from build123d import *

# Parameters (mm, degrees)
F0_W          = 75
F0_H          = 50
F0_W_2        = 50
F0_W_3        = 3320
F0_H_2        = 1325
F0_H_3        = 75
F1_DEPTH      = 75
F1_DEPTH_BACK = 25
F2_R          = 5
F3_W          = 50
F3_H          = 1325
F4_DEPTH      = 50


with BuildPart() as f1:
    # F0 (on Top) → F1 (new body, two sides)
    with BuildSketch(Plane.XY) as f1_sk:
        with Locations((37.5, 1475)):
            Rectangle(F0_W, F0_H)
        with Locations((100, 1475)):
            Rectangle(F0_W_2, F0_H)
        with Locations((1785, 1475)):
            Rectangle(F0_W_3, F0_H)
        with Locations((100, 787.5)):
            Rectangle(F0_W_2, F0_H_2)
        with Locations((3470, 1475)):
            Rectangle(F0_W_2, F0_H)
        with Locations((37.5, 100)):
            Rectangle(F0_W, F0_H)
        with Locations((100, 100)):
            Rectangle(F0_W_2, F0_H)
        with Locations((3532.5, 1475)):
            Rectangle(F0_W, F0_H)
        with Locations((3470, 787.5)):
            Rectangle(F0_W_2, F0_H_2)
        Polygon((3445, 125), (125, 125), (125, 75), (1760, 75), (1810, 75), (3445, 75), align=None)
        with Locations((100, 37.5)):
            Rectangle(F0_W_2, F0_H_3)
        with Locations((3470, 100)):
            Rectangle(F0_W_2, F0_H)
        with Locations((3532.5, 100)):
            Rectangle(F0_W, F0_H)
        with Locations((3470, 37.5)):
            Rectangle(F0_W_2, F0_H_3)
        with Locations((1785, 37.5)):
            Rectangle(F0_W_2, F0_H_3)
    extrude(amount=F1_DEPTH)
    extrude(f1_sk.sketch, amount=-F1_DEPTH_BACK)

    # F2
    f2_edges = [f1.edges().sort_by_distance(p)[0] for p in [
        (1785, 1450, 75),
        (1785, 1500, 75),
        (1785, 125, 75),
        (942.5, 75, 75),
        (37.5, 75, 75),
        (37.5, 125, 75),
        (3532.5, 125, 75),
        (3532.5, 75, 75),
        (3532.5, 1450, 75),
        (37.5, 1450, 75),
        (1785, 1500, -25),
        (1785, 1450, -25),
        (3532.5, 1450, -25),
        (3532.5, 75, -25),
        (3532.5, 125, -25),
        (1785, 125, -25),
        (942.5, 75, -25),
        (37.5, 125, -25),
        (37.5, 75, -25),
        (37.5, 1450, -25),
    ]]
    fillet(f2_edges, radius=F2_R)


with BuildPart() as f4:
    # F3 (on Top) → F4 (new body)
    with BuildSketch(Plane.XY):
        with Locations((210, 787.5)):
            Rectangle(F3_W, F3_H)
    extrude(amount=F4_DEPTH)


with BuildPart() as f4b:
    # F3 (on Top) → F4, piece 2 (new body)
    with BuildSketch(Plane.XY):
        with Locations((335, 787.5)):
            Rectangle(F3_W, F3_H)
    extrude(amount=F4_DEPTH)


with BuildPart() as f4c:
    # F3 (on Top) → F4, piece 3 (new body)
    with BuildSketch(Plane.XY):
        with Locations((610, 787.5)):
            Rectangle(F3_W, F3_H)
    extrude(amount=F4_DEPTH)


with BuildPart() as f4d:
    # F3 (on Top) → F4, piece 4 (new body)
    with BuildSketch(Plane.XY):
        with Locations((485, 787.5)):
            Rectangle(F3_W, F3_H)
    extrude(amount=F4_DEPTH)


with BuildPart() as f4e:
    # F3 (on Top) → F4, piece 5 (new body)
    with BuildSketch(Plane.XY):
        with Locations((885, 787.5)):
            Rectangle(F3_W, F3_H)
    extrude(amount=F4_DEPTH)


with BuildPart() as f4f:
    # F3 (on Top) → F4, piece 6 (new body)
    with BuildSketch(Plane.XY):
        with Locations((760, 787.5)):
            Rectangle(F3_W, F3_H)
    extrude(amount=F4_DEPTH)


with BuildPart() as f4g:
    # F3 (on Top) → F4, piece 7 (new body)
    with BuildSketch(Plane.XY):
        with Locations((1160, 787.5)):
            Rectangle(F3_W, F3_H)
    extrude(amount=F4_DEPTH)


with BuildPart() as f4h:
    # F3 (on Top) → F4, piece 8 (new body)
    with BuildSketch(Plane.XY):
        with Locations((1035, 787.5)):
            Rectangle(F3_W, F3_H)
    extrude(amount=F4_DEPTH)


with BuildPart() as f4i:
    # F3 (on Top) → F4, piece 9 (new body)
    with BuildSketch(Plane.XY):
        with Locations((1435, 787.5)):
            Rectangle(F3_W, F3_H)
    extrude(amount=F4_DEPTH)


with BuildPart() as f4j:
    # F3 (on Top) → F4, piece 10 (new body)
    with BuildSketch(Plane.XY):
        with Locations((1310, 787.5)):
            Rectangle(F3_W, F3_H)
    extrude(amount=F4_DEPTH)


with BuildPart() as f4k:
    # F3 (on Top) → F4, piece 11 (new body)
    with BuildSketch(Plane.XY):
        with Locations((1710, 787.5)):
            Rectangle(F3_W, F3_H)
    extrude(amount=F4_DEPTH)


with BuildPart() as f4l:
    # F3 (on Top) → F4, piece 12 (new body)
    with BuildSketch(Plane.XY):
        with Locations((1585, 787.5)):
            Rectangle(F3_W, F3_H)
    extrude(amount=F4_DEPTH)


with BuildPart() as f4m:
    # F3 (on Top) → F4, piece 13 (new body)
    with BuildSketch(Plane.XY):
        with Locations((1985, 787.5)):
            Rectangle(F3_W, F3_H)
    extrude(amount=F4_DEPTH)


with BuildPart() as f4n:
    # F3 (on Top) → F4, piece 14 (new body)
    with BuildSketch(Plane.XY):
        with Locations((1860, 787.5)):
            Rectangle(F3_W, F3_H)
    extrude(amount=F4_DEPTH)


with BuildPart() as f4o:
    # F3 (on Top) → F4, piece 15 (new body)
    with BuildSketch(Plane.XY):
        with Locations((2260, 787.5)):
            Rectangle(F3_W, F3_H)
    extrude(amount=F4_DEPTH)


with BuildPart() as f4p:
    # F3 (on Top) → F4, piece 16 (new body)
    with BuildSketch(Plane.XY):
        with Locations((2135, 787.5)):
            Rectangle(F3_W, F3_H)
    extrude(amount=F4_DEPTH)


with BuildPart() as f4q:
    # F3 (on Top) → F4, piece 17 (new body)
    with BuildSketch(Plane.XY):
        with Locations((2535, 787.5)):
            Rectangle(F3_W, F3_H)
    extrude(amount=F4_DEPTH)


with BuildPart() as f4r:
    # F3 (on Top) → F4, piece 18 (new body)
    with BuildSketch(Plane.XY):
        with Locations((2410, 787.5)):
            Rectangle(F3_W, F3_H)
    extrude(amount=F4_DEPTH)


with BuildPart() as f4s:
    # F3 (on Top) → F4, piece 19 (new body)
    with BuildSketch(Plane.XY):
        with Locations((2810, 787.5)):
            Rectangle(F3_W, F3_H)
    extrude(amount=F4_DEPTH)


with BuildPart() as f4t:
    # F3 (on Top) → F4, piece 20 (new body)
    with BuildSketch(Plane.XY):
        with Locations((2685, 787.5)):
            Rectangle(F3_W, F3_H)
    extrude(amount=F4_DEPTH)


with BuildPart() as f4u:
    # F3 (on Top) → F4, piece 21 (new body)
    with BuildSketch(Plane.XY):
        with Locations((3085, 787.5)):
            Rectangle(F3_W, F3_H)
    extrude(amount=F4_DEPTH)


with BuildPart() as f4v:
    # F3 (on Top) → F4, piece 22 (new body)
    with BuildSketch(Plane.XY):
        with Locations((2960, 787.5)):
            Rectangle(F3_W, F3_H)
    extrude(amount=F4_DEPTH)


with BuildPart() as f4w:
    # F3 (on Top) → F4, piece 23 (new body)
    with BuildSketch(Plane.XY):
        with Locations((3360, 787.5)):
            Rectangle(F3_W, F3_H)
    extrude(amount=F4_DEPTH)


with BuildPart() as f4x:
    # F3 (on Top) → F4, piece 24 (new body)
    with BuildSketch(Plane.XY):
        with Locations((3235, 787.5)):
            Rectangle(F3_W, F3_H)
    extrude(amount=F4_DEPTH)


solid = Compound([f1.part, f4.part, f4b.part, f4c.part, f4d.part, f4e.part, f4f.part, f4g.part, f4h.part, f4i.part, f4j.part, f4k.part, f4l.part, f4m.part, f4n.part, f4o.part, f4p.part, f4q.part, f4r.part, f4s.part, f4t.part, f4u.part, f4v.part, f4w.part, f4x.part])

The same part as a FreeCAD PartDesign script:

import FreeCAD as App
import Part
import Sketcher
from FreeCAD import Vector


def edges_at(feature, points):
    """Names of the edges that pass closest to the given points."""
    edges = feature.Shape.Edges
    near = lambda p: min(range(len(edges)), key=lambda i: edges[i].distToShape(Part.Vertex(*p))[0])
    return sorted({f"Edge{near(p) + 1}" for p in points})


def add_polygon(sketch, points):
    """Adds a closed chain of lines whose ends are joined by coincident constraints."""
    first, n = sketch.GeometryCount, len(points)
    for a, b in zip(points, points[1:] + points[:1]):
        sketch.addGeometry(Part.LineSegment(App.Vector(*a, 0), App.Vector(*b, 0)), False)
    for i in range(n):
        sketch.addConstraint(Sketcher.Constraint("Coincident", first + i, 2, first + (i + 1) % n, 1))

doc = App.newDocument("Part")
body = doc.addObject("PartDesign::Body", "Body")

sketch1 = body.newObject("Sketcher::SketchObject", "Sketch")
sketch1.AttachmentSupport = (doc.getObject("XY_Plane"), [""])
sketch1.MapMode = "FlatFace"
add_polygon(sketch1, [(125, 75), (1760, 75), (1760, 0), (1810, 0), (1810, 75), (3445, 75), (3445, 0), (3495, 0), (3495, 75), (3570, 75), (3570, 125), (3495, 125), (3495, 1450), (3570, 1450), (3570, 1500), (0, 1500), (0, 1450), (75, 1450), (75, 125), (0, 125), (0, 75), (75, 75), (75, 0), (125, 0)])
add_polygon(sketch1, [(3445, 1450), (3445, 125), (125, 125), (125, 1450)])
sketch1.addConstraint(Sketcher.Constraint("Horizontal", 0))
sketch1.addConstraint(Sketcher.Constraint("Vertical", 1))
sketch1.addConstraint(Sketcher.Constraint("Horizontal", 2))
sketch1.addConstraint(Sketcher.Constraint("Vertical", 3))
sketch1.addConstraint(Sketcher.Constraint("Horizontal", 4))
sketch1.addConstraint(Sketcher.Constraint("Vertical", 5))
sketch1.addConstraint(Sketcher.Constraint("Horizontal", 6))
sketch1.addConstraint(Sketcher.Constraint("Vertical", 7))
sketch1.addConstraint(Sketcher.Constraint("Horizontal", 8))
sketch1.addConstraint(Sketcher.Constraint("Vertical", 9))
sketch1.addConstraint(Sketcher.Constraint("Horizontal", 10))
sketch1.addConstraint(Sketcher.Constraint("Vertical", 11))
sketch1.addConstraint(Sketcher.Constraint("Horizontal", 12))
sketch1.addConstraint(Sketcher.Constraint("Vertical", 13))
sketch1.addConstraint(Sketcher.Constraint("Horizontal", 14))
sketch1.addConstraint(Sketcher.Constraint("Vertical", 15))
sketch1.addConstraint(Sketcher.Constraint("Horizontal", 16))
sketch1.addConstraint(Sketcher.Constraint("Vertical", 17))
sketch1.addConstraint(Sketcher.Constraint("Horizontal", 18))
sketch1.addConstraint(Sketcher.Constraint("Vertical", 19))
sketch1.addConstraint(Sketcher.Constraint("Horizontal", 20))
sketch1.addConstraint(Sketcher.Constraint("Vertical", 21))
sketch1.addConstraint(Sketcher.Constraint("Horizontal", 22))
sketch1.addConstraint(Sketcher.Constraint("Vertical", 23))
sketch1.addConstraint(Sketcher.Constraint("Vertical", 24))
sketch1.addConstraint(Sketcher.Constraint("Horizontal", 25))
sketch1.addConstraint(Sketcher.Constraint("Vertical", 26))
sketch1.addConstraint(Sketcher.Constraint("Horizontal", 27))
sketch1.addConstraint(Sketcher.Constraint("PointOnObject", 1, 2, -1))
sketch1.addConstraint(Sketcher.Constraint("PointOnObject", 5, 2, -1))
sketch1.addConstraint(Sketcher.Constraint("PointOnObject", 14, 2, -2))
sketch1.addConstraint(Sketcher.Constraint("PointOnObject", 18, 2, -2))
sketch1.addConstraint(Sketcher.Constraint("PointOnObject", 21, 2, -1))
sketch1.addConstraint(Sketcher.Constraint("Horizontal", 0, 2, 3, 2))
sketch1.addConstraint(Sketcher.Constraint("Horizontal", 4, 2, 7, 2))
sketch1.addConstraint(Sketcher.Constraint("Horizontal", 12, 2, 15, 2))
sketch1.addConstraint(Sketcher.Constraint("Horizontal", 10, 2, 17, 2))
sketch1.addConstraint(Sketcher.Constraint("Horizontal", 8, 2, 19, 2))
sketch1.addConstraint(Sketcher.Constraint("Horizontal", 18, 2, 24, 2))
sketch1.addConstraint(Sketcher.Constraint("Horizontal", 16, 2, 26, 2))
sketch1.addConstraint(Sketcher.Constraint("Vertical", 7, 2, 10, 2))
sketch1.addConstraint(Sketcher.Constraint("Vertical", 9, 2, 12, 2))
sketch1.addConstraint(Sketcher.Constraint("Vertical", 17, 2, 20, 2))
sketch1.addConstraint(Sketcher.Constraint("Vertical", 5, 2, 24, 2))
sketch1.addConstraint(Sketcher.Constraint("Vertical", 23, 2, 25, 2))
sketch1.addConstraint(Sketcher.Constraint("Equal", 0, 4))
sketch1.addConstraint(Sketcher.Constraint("Equal", 2, 6))
sketch1.addConstraint(Sketcher.Constraint("Equal", 12, 16))
sketch1.addConstraint(Sketcher.Constraint("Equal", 6, 22))
sketch1.addConstraint(Sketcher.Constraint("Equal", 20, 1))
sketch1.addConstraint(Sketcher.Constraint("Equal", 22, 9))
sketch1.addConstraint(Sketcher.Constraint("Equal", 9, 13))
sketch1.addConstraint(Sketcher.Constraint("DistanceX", 0, 1, 0, 2, 1635.0))
sketch1.addConstraint(Sketcher.Constraint("DistanceX", 2, 1, 2, 2, 50.0))
sketch1.addConstraint(Sketcher.Constraint("DistanceX", 8, 1, 8, 2, 75.0))
sketch1.addConstraint(Sketcher.Constraint("DistanceY", 11, 1, 11, 2, 1325.0))
pad1 = body.newObject("PartDesign::Pad", "Pad")
pad1.Profile = sketch1
pad1.Type = "TwoLengths"
pad1.Length = 75
pad1.Length2 = 25
doc.recompute()

fillet = body.newObject("PartDesign::Fillet", "Fillet")
fillet.Base = (pad1, edges_at(pad1, [
    (1785, 1450, 75),
    (1785, 1500, 75),
    (1785, 125, 75),
    (942.5, 75, 75),
    (37.5, 75, 75),
    (37.5, 125, 75),
    (3532.5, 125, 75),
    (3532.5, 75, 75),
    (3532.5, 1450, 75),
    (37.5, 1450, 75),
    (1785, 1500, -25),
    (1785, 1450, -25),
    (3532.5, 1450, -25),
    (3532.5, 75, -25),
    (3532.5, 125, -25),
    (1785, 125, -25),
    (942.5, 75, -25),
    (37.5, 125, -25),
    (37.5, 75, -25),
    (37.5, 1450, -25),
]))
fillet.Radius = 5
body2 = doc.addObject("PartDesign::Body", "Body001")

sketch2 = body2.newObject("Sketcher::SketchObject", "Sketch001")
sketch2.AttachmentSupport = (doc.getObject("XY_Plane001"), [""])
sketch2.MapMode = "FlatFace"
add_polygon(sketch2, [(185, 1450), (185, 125), (235, 125), (235, 1450)])
sketch2.addConstraint(Sketcher.Constraint("Vertical", 0))
sketch2.addConstraint(Sketcher.Constraint("Horizontal", 1))
sketch2.addConstraint(Sketcher.Constraint("Vertical", 2))
sketch2.addConstraint(Sketcher.Constraint("Horizontal", 3))
sketch2.addConstraint(Sketcher.Constraint("DistanceX", 1, 1, 1, 2, 50.0))
sketch2.addConstraint(Sketcher.Constraint("DistanceY", 0, 2, 0, 1, 1325.0))
sketch2.addConstraint(Sketcher.Constraint("DistanceX", -1, 1, 0, 2, 185.0))
sketch2.addConstraint(Sketcher.Constraint("DistanceY", -1, 1, 0, 2, 125.0))
pad2 = body2.newObject("PartDesign::Pad", "Pad001")
pad2.Profile = sketch2
pad2.Length = 50
body3 = doc.addObject("PartDesign::Body", "Body002")

sketch3 = body3.newObject("Sketcher::SketchObject", "Sketch002")
sketch3.AttachmentSupport = (doc.getObject("XY_Plane002"), [""])
sketch3.MapMode = "FlatFace"
add_polygon(sketch3, [(310, 1450), (310, 125), (360, 125), (360, 1450)])
sketch3.addConstraint(Sketcher.Constraint("Vertical", 0))
sketch3.addConstraint(Sketcher.Constraint("Horizontal", 1))
sketch3.addConstraint(Sketcher.Constraint("Vertical", 2))
sketch3.addConstraint(Sketcher.Constraint("Horizontal", 3))
sketch3.addConstraint(Sketcher.Constraint("DistanceX", 1, 1, 1, 2, 50.0))
sketch3.addConstraint(Sketcher.Constraint("DistanceY", 0, 2, 0, 1, 1325.0))
sketch3.addConstraint(Sketcher.Constraint("DistanceX", -1, 1, 0, 2, 310.0))
sketch3.addConstraint(Sketcher.Constraint("DistanceY", -1, 1, 0, 2, 125.0))
pad3 = body3.newObject("PartDesign::Pad", "Pad002")
pad3.Profile = sketch3
pad3.Length = 50
body4 = doc.addObject("PartDesign::Body", "Body003")

sketch4 = body4.newObject("Sketcher::SketchObject", "Sketch003")
sketch4.AttachmentSupport = (doc.getObject("XY_Plane003"), [""])
sketch4.MapMode = "FlatFace"
add_polygon(sketch4, [(585, 1450), (585, 125), (635, 125), (635, 1450)])
sketch4.addConstraint(Sketcher.Constraint("Vertical", 0))
sketch4.addConstraint(Sketcher.Constraint("Horizontal", 1))
sketch4.addConstraint(Sketcher.Constraint("Vertical", 2))
sketch4.addConstraint(Sketcher.Constraint("Horizontal", 3))
sketch4.addConstraint(Sketcher.Constraint("DistanceX", 1, 1, 1, 2, 50.0))
sketch4.addConstraint(Sketcher.Constraint("DistanceY", 0, 2, 0, 1, 1325.0))
sketch4.addConstraint(Sketcher.Constraint("DistanceX", -1, 1, 0, 2, 585.0))
sketch4.addConstraint(Sketcher.Constraint("DistanceY", -1, 1, 0, 2, 125.0))
pad4 = body4.newObject("PartDesign::Pad", "Pad003")
pad4.Profile = sketch4
pad4.Length = 50
body5 = doc.addObject("PartDesign::Body", "Body004")

sketch5 = body5.newObject("Sketcher::SketchObject", "Sketch004")
sketch5.AttachmentSupport = (doc.getObject("XY_Plane004"), [""])
sketch5.MapMode = "FlatFace"
add_polygon(sketch5, [(460, 1450), (460, 125), (510, 125), (510, 1450)])
sketch5.addConstraint(Sketcher.Constraint("Vertical", 0))
sketch5.addConstraint(Sketcher.Constraint("Horizontal", 1))
sketch5.addConstraint(Sketcher.Constraint("Vertical", 2))
sketch5.addConstraint(Sketcher.Constraint("Horizontal", 3))
sketch5.addConstraint(Sketcher.Constraint("DistanceX", 1, 1, 1, 2, 50.0))
sketch5.addConstraint(Sketcher.Constraint("DistanceY", 0, 2, 0, 1, 1325.0))
sketch5.addConstraint(Sketcher.Constraint("DistanceX", -1, 1, 0, 2, 460.0))
sketch5.addConstraint(Sketcher.Constraint("DistanceY", -1, 1, 0, 2, 125.0))
pad5 = body5.newObject("PartDesign::Pad", "Pad004")
pad5.Profile = sketch5
pad5.Length = 50
body6 = doc.addObject("PartDesign::Body", "Body005")

sketch6 = body6.newObject("Sketcher::SketchObject", "Sketch005")
sketch6.AttachmentSupport = (doc.getObject("XY_Plane005"), [""])
sketch6.MapMode = "FlatFace"
add_polygon(sketch6, [(860, 1450), (860, 125), (910, 125), (910, 1450)])
sketch6.addConstraint(Sketcher.Constraint("Vertical", 0))
sketch6.addConstraint(Sketcher.Constraint("Horizontal", 1))
sketch6.addConstraint(Sketcher.Constraint("Vertical", 2))
sketch6.addConstraint(Sketcher.Constraint("Horizontal", 3))
sketch6.addConstraint(Sketcher.Constraint("DistanceX", 1, 1, 1, 2, 50.0))
sketch6.addConstraint(Sketcher.Constraint("DistanceY", 0, 2, 0, 1, 1325.0))
sketch6.addConstraint(Sketcher.Constraint("DistanceX", -1, 1, 0, 2, 860.0))
sketch6.addConstraint(Sketcher.Constraint("DistanceY", -1, 1, 0, 2, 125.0))
pad6 = body6.newObject("PartDesign::Pad", "Pad005")
pad6.Profile = sketch6
pad6.Length = 50
body7 = doc.addObject("PartDesign::Body", "Body006")

sketch7 = body7.newObject("Sketcher::SketchObject", "Sketch006")
sketch7.AttachmentSupport = (doc.getObject("XY_Plane006"), [""])
sketch7.MapMode = "FlatFace"
add_polygon(sketch7, [(735, 1450), (735, 125), (785, 125), (785, 1450)])
sketch7.addConstraint(Sketcher.Constraint("Vertical", 0))
sketch7.addConstraint(Sketcher.Constraint("Horizontal", 1))
sketch7.addConstraint(Sketcher.Constraint("Vertical", 2))
sketch7.addConstraint(Sketcher.Constraint("Horizontal", 3))
sketch7.addConstraint(Sketcher.Constraint("DistanceX", 1, 1, 1, 2, 50.0))
sketch7.addConstraint(Sketcher.Constraint("DistanceY", 0, 2, 0, 1, 1325.0))
sketch7.addConstraint(Sketcher.Constraint("DistanceX", -1, 1, 0, 2, 735.0))
sketch7.addConstraint(Sketcher.Constraint("DistanceY", -1, 1, 0, 2, 125.0))
pad7 = body7.newObject("PartDesign::Pad", "Pad006")
pad7.Profile = sketch7
pad7.Length = 50
body8 = doc.addObject("PartDesign::Body", "Body007")

sketch8 = body8.newObject("Sketcher::SketchObject", "Sketch007")
sketch8.AttachmentSupport = (doc.getObject("XY_Plane007"), [""])
sketch8.MapMode = "FlatFace"
add_polygon(sketch8, [(1135, 1450), (1135, 125), (1185, 125), (1185, 1450)])
sketch8.addConstraint(Sketcher.Constraint("Vertical", 0))
sketch8.addConstraint(Sketcher.Constraint("Horizontal", 1))
sketch8.addConstraint(Sketcher.Constraint("Vertical", 2))
sketch8.addConstraint(Sketcher.Constraint("Horizontal", 3))
sketch8.addConstraint(Sketcher.Constraint("DistanceX", 1, 1, 1, 2, 50.0))
sketch8.addConstraint(Sketcher.Constraint("DistanceY", 0, 2, 0, 1, 1325.0))
sketch8.addConstraint(Sketcher.Constraint("DistanceX", -1, 1, 0, 2, 1135.0))
sketch8.addConstraint(Sketcher.Constraint("DistanceY", -1, 1, 0, 2, 125.0))
pad8 = body8.newObject("PartDesign::Pad", "Pad007")
pad8.Profile = sketch8
pad8.Length = 50
body9 = doc.addObject("PartDesign::Body", "Body008")

sketch9 = body9.newObject("Sketcher::SketchObject", "Sketch008")
sketch9.AttachmentSupport = (doc.getObject("XY_Plane008"), [""])
sketch9.MapMode = "FlatFace"
add_polygon(sketch9, [(1010, 1450), (1010, 125), (1060, 125), (1060, 1450)])
sketch9.addConstraint(Sketcher.Constraint("Vertical", 0))
sketch9.addConstraint(Sketcher.Constraint("Horizontal", 1))
sketch9.addConstraint(Sketcher.Constraint("Vertical", 2))
sketch9.addConstraint(Sketcher.Constraint("Horizontal", 3))
sketch9.addConstraint(Sketcher.Constraint("DistanceX", 1, 1, 1, 2, 50.0))
sketch9.addConstraint(Sketcher.Constraint("DistanceY", 0, 2, 0, 1, 1325.0))
sketch9.addConstraint(Sketcher.Constraint("DistanceX", -1, 1, 0, 2, 1010.0))
sketch9.addConstraint(Sketcher.Constraint("DistanceY", -1, 1, 0, 2, 125.0))
pad9 = body9.newObject("PartDesign::Pad", "Pad008")
pad9.Profile = sketch9
pad9.Length = 50
body10 = doc.addObject("PartDesign::Body", "Body009")

sketch10 = body10.newObject("Sketcher::SketchObject", "Sketch009")
sketch10.AttachmentSupport = (doc.getObject("XY_Plane009"), [""])
sketch10.MapMode = "FlatFace"
add_polygon(sketch10, [(1410, 1450), (1410, 125), (1460, 125), (1460, 1450)])
sketch10.addConstraint(Sketcher.Constraint("Vertical", 0))
sketch10.addConstraint(Sketcher.Constraint("Horizontal", 1))
sketch10.addConstraint(Sketcher.Constraint("Vertical", 2))
sketch10.addConstraint(Sketcher.Constraint("Horizontal", 3))
sketch10.addConstraint(Sketcher.Constraint("DistanceX", 1, 1, 1, 2, 50.0))
sketch10.addConstraint(Sketcher.Constraint("DistanceY", 0, 2, 0, 1, 1325.0))
sketch10.addConstraint(Sketcher.Constraint("DistanceX", -1, 1, 0, 2, 1410.0))
sketch10.addConstraint(Sketcher.Constraint("DistanceY", -1, 1, 0, 2, 125.0))
pad10 = body10.newObject("PartDesign::Pad", "Pad009")
pad10.Profile = sketch10
pad10.Length = 50
body11 = doc.addObject("PartDesign::Body", "Body010")

sketch11 = body11.newObject("Sketcher::SketchObject", "Sketch010")
sketch11.AttachmentSupport = (doc.getObject("XY_Plane010"), [""])
sketch11.MapMode = "FlatFace"
add_polygon(sketch11, [(1285, 1450), (1285, 125), (1335, 125), (1335, 1450)])
sketch11.addConstraint(Sketcher.Constraint("Vertical", 0))
sketch11.addConstraint(Sketcher.Constraint("Horizontal", 1))
sketch11.addConstraint(Sketcher.Constraint("Vertical", 2))
sketch11.addConstraint(Sketcher.Constraint("Horizontal", 3))
sketch11.addConstraint(Sketcher.Constraint("DistanceX", 1, 1, 1, 2, 50.0))
sketch11.addConstraint(Sketcher.Constraint("DistanceY", 0, 2, 0, 1, 1325.0))
sketch11.addConstraint(Sketcher.Constraint("DistanceX", -1, 1, 0, 2, 1285.0))
sketch11.addConstraint(Sketcher.Constraint("DistanceY", -1, 1, 0, 2, 125.0))
pad11 = body11.newObject("PartDesign::Pad", "Pad010")
pad11.Profile = sketch11
pad11.Length = 50
body12 = doc.addObject("PartDesign::Body", "Body011")

sketch12 = body12.newObject("Sketcher::SketchObject", "Sketch011")
sketch12.AttachmentSupport = (doc.getObject("XY_Plane011"), [""])
sketch12.MapMode = "FlatFace"
add_polygon(sketch12, [(1685, 1450), (1685, 125), (1735, 125), (1735, 1450)])
sketch12.addConstraint(Sketcher.Constraint("Vertical", 0))
sketch12.addConstraint(Sketcher.Constraint("Horizontal", 1))
sketch12.addConstraint(Sketcher.Constraint("Vertical", 2))
sketch12.addConstraint(Sketcher.Constraint("Horizontal", 3))
sketch12.addConstraint(Sketcher.Constraint("DistanceX", 1, 1, 1, 2, 50.0))
sketch12.addConstraint(Sketcher.Constraint("DistanceY", 0, 2, 0, 1, 1325.0))
sketch12.addConstraint(Sketcher.Constraint("DistanceX", -1, 1, 0, 2, 1685.0))
sketch12.addConstraint(Sketcher.Constraint("DistanceY", -1, 1, 0, 2, 125.0))
pad12 = body12.newObject("PartDesign::Pad", "Pad011")
pad12.Profile = sketch12
pad12.Length = 50
body13 = doc.addObject("PartDesign::Body", "Body012")

sketch13 = body13.newObject("Sketcher::SketchObject", "Sketch012")
sketch13.AttachmentSupport = (doc.getObject("XY_Plane012"), [""])
sketch13.MapMode = "FlatFace"
add_polygon(sketch13, [(1560, 1450), (1560, 125), (1610, 125), (1610, 1450)])
sketch13.addConstraint(Sketcher.Constraint("Vertical", 0))
sketch13.addConstraint(Sketcher.Constraint("Horizontal", 1))
sketch13.addConstraint(Sketcher.Constraint("Vertical", 2))
sketch13.addConstraint(Sketcher.Constraint("Horizontal", 3))
sketch13.addConstraint(Sketcher.Constraint("DistanceX", 1, 1, 1, 2, 50.0))
sketch13.addConstraint(Sketcher.Constraint("DistanceY", 0, 2, 0, 1, 1325.0))
sketch13.addConstraint(Sketcher.Constraint("DistanceX", -1, 1, 0, 2, 1560.0))
sketch13.addConstraint(Sketcher.Constraint("DistanceY", -1, 1, 0, 2, 125.0))
pad13 = body13.newObject("PartDesign::Pad", "Pad012")
pad13.Profile = sketch13
pad13.Length = 50
body14 = doc.addObject("PartDesign::Body", "Body013")

sketch14 = body14.newObject("Sketcher::SketchObject", "Sketch013")
sketch14.AttachmentSupport = (doc.getObject("XY_Plane013"), [""])
sketch14.MapMode = "FlatFace"
add_polygon(sketch14, [(1960, 1450), (1960, 125), (2010, 125), (2010, 1450)])
sketch14.addConstraint(Sketcher.Constraint("Vertical", 0))
sketch14.addConstraint(Sketcher.Constraint("Horizontal", 1))
sketch14.addConstraint(Sketcher.Constraint("Vertical", 2))
sketch14.addConstraint(Sketcher.Constraint("Horizontal", 3))
sketch14.addConstraint(Sketcher.Constraint("DistanceX", 1, 1, 1, 2, 50.0))
sketch14.addConstraint(Sketcher.Constraint("DistanceY", 0, 2, 0, 1, 1325.0))
sketch14.addConstraint(Sketcher.Constraint("DistanceX", -1, 1, 0, 2, 1960.0))
sketch14.addConstraint(Sketcher.Constraint("DistanceY", -1, 1, 0, 2, 125.0))
pad14 = body14.newObject("PartDesign::Pad", "Pad013")
pad14.Profile = sketch14
pad14.Length = 50
body15 = doc.addObject("PartDesign::Body", "Body014")

sketch15 = body15.newObject("Sketcher::SketchObject", "Sketch014")
sketch15.AttachmentSupport = (doc.getObject("XY_Plane014"), [""])
sketch15.MapMode = "FlatFace"
add_polygon(sketch15, [(1835, 1450), (1835, 125), (1885, 125), (1885, 1450)])
sketch15.addConstraint(Sketcher.Constraint("Vertical", 0))
sketch15.addConstraint(Sketcher.Constraint("Horizontal", 1))
sketch15.addConstraint(Sketcher.Constraint("Vertical", 2))
sketch15.addConstraint(Sketcher.Constraint("Horizontal", 3))
sketch15.addConstraint(Sketcher.Constraint("DistanceX", 1, 1, 1, 2, 50.0))
sketch15.addConstraint(Sketcher.Constraint("DistanceY", 0, 2, 0, 1, 1325.0))
sketch15.addConstraint(Sketcher.Constraint("DistanceX", -1, 1, 0, 2, 1835.0))
sketch15.addConstraint(Sketcher.Constraint("DistanceY", -1, 1, 0, 2, 125.0))
pad15 = body15.newObject("PartDesign::Pad", "Pad014")
pad15.Profile = sketch15
pad15.Length = 50
body16 = doc.addObject("PartDesign::Body", "Body015")

sketch16 = body16.newObject("Sketcher::SketchObject", "Sketch015")
sketch16.AttachmentSupport = (doc.getObject("XY_Plane015"), [""])
sketch16.MapMode = "FlatFace"
add_polygon(sketch16, [(2235, 1450), (2235, 125), (2285, 125), (2285, 1450)])
sketch16.addConstraint(Sketcher.Constraint("Vertical", 0))
sketch16.addConstraint(Sketcher.Constraint("Horizontal", 1))
sketch16.addConstraint(Sketcher.Constraint("Vertical", 2))
sketch16.addConstraint(Sketcher.Constraint("Horizontal", 3))
sketch16.addConstraint(Sketcher.Constraint("DistanceX", 1, 1, 1, 2, 50.0))
sketch16.addConstraint(Sketcher.Constraint("DistanceY", 0, 2, 0, 1, 1325.0))
sketch16.addConstraint(Sketcher.Constraint("DistanceX", -1, 1, 0, 2, 2235.0))
sketch16.addConstraint(Sketcher.Constraint("DistanceY", -1, 1, 0, 2, 125.0))
pad16 = body16.newObject("PartDesign::Pad", "Pad015")
pad16.Profile = sketch16
pad16.Length = 50
body17 = doc.addObject("PartDesign::Body", "Body016")

sketch17 = body17.newObject("Sketcher::SketchObject", "Sketch016")
sketch17.AttachmentSupport = (doc.getObject("XY_Plane016"), [""])
sketch17.MapMode = "FlatFace"
add_polygon(sketch17, [(2110, 1450), (2110, 125), (2160, 125), (2160, 1450)])
sketch17.addConstraint(Sketcher.Constraint("Vertical", 0))
sketch17.addConstraint(Sketcher.Constraint("Horizontal", 1))
sketch17.addConstraint(Sketcher.Constraint("Vertical", 2))
sketch17.addConstraint(Sketcher.Constraint("Horizontal", 3))
sketch17.addConstraint(Sketcher.Constraint("DistanceX", 1, 1, 1, 2, 50.0))
sketch17.addConstraint(Sketcher.Constraint("DistanceY", 0, 2, 0, 1, 1325.0))
sketch17.addConstraint(Sketcher.Constraint("DistanceX", -1, 1, 0, 2, 2110.0))
sketch17.addConstraint(Sketcher.Constraint("DistanceY", -1, 1, 0, 2, 125.0))
pad17 = body17.newObject("PartDesign::Pad", "Pad016")
pad17.Profile = sketch17
pad17.Length = 50
body18 = doc.addObject("PartDesign::Body", "Body017")

sketch18 = body18.newObject("Sketcher::SketchObject", "Sketch017")
sketch18.AttachmentSupport = (doc.getObject("XY_Plane017"), [""])
sketch18.MapMode = "FlatFace"
add_polygon(sketch18, [(2510, 1450), (2510, 125), (2560, 125), (2560, 1450)])
sketch18.addConstraint(Sketcher.Constraint("Vertical", 0))
sketch18.addConstraint(Sketcher.Constraint("Horizontal", 1))
sketch18.addConstraint(Sketcher.Constraint("Vertical", 2))
sketch18.addConstraint(Sketcher.Constraint("Horizontal", 3))
sketch18.addConstraint(Sketcher.Constraint("DistanceX", 1, 1, 1, 2, 50.0))
sketch18.addConstraint(Sketcher.Constraint("DistanceY", 0, 2, 0, 1, 1325.0))
sketch18.addConstraint(Sketcher.Constraint("DistanceX", -1, 1, 0, 2, 2510.0))
sketch18.addConstraint(Sketcher.Constraint("DistanceY", -1, 1, 0, 2, 125.0))
pad18 = body18.newObject("PartDesign::Pad", "Pad017")
pad18.Profile = sketch18
pad18.Length = 50
body19 = doc.addObject("PartDesign::Body", "Body018")

sketch19 = body19.newObject("Sketcher::SketchObject", "Sketch018")
sketch19.AttachmentSupport = (doc.getObject("XY_Plane018"), [""])
sketch19.MapMode = "FlatFace"
add_polygon(sketch19, [(2385, 1450), (2385, 125), (2435, 125), (2435, 1450)])
sketch19.addConstraint(Sketcher.Constraint("Vertical", 0))
sketch19.addConstraint(Sketcher.Constraint("Horizontal", 1))
sketch19.addConstraint(Sketcher.Constraint("Vertical", 2))
sketch19.addConstraint(Sketcher.Constraint("Horizontal", 3))
sketch19.addConstraint(Sketcher.Constraint("DistanceX", 1, 1, 1, 2, 50.0))
sketch19.addConstraint(Sketcher.Constraint("DistanceY", 0, 2, 0, 1, 1325.0))
sketch19.addConstraint(Sketcher.Constraint("DistanceX", -1, 1, 0, 2, 2385.0))
sketch19.addConstraint(Sketcher.Constraint("DistanceY", -1, 1, 0, 2, 125.0))
pad19 = body19.newObject("PartDesign::Pad", "Pad018")
pad19.Profile = sketch19
pad19.Length = 50
body20 = doc.addObject("PartDesign::Body", "Body019")

sketch20 = body20.newObject("Sketcher::SketchObject", "Sketch019")
sketch20.AttachmentSupport = (doc.getObject("XY_Plane019"), [""])
sketch20.MapMode = "FlatFace"
add_polygon(sketch20, [(2785, 1450), (2785, 125), (2835, 125), (2835, 1450)])
sketch20.addConstraint(Sketcher.Constraint("Vertical", 0))
sketch20.addConstraint(Sketcher.Constraint("Horizontal", 1))
sketch20.addConstraint(Sketcher.Constraint("Vertical", 2))
sketch20.addConstraint(Sketcher.Constraint("Horizontal", 3))
sketch20.addConstraint(Sketcher.Constraint("DistanceX", 1, 1, 1, 2, 50.0))
sketch20.addConstraint(Sketcher.Constraint("DistanceY", 0, 2, 0, 1, 1325.0))
sketch20.addConstraint(Sketcher.Constraint("DistanceX", -1, 1, 0, 2, 2785.0))
sketch20.addConstraint(Sketcher.Constraint("DistanceY", -1, 1, 0, 2, 125.0))
pad20 = body20.newObject("PartDesign::Pad", "Pad019")
pad20.Profile = sketch20
pad20.Length = 50
body21 = doc.addObject("PartDesign::Body", "Body020")

sketch21 = body21.newObject("Sketcher::SketchObject", "Sketch020")
sketch21.AttachmentSupport = (doc.getObject("XY_Plane020"), [""])
sketch21.MapMode = "FlatFace"
add_polygon(sketch21, [(2660, 1450), (2660, 125), (2710, 125), (2710, 1450)])
sketch21.addConstraint(Sketcher.Constraint("Vertical", 0))
sketch21.addConstraint(Sketcher.Constraint("Horizontal", 1))
sketch21.addConstraint(Sketcher.Constraint("Vertical", 2))
sketch21.addConstraint(Sketcher.Constraint("Horizontal", 3))
sketch21.addConstraint(Sketcher.Constraint("DistanceX", 1, 1, 1, 2, 50.0))
sketch21.addConstraint(Sketcher.Constraint("DistanceY", 0, 2, 0, 1, 1325.0))
sketch21.addConstraint(Sketcher.Constraint("DistanceX", -1, 1, 0, 2, 2660.0))
sketch21.addConstraint(Sketcher.Constraint("DistanceY", -1, 1, 0, 2, 125.0))
pad21 = body21.newObject("PartDesign::Pad", "Pad020")
pad21.Profile = sketch21
pad21.Length = 50
body22 = doc.addObject("PartDesign::Body", "Body021")

sketch22 = body22.newObject("Sketcher::SketchObject", "Sketch021")
sketch22.AttachmentSupport = (doc.getObject("XY_Plane021"), [""])
sketch22.MapMode = "FlatFace"
add_polygon(sketch22, [(3060, 1450), (3060, 125), (3110, 125), (3110, 1450)])
sketch22.addConstraint(Sketcher.Constraint("Vertical", 0))
sketch22.addConstraint(Sketcher.Constraint("Horizontal", 1))
sketch22.addConstraint(Sketcher.Constraint("Vertical", 2))
sketch22.addConstraint(Sketcher.Constraint("Horizontal", 3))
sketch22.addConstraint(Sketcher.Constraint("DistanceX", 1, 1, 1, 2, 50.0))
sketch22.addConstraint(Sketcher.Constraint("DistanceY", 0, 2, 0, 1, 1325.0))
sketch22.addConstraint(Sketcher.Constraint("DistanceX", -1, 1, 0, 2, 3060.0))
sketch22.addConstraint(Sketcher.Constraint("DistanceY", -1, 1, 0, 2, 125.0))
pad22 = body22.newObject("PartDesign::Pad", "Pad021")
pad22.Profile = sketch22
pad22.Length = 50
body23 = doc.addObject("PartDesign::Body", "Body022")

sketch23 = body23.newObject("Sketcher::SketchObject", "Sketch022")
sketch23.AttachmentSupport = (doc.getObject("XY_Plane022"), [""])
sketch23.MapMode = "FlatFace"
add_polygon(sketch23, [(2935, 1450), (2935, 125), (2985, 125), (2985, 1450)])
sketch23.addConstraint(Sketcher.Constraint("Vertical", 0))
sketch23.addConstraint(Sketcher.Constraint("Horizontal", 1))
sketch23.addConstraint(Sketcher.Constraint("Vertical", 2))
sketch23.addConstraint(Sketcher.Constraint("Horizontal", 3))
sketch23.addConstraint(Sketcher.Constraint("DistanceX", 1, 1, 1, 2, 50.0))
sketch23.addConstraint(Sketcher.Constraint("DistanceY", 0, 2, 0, 1, 1325.0))
sketch23.addConstraint(Sketcher.Constraint("DistanceX", -1, 1, 0, 2, 2935.0))
sketch23.addConstraint(Sketcher.Constraint("DistanceY", -1, 1, 0, 2, 125.0))
pad23 = body23.newObject("PartDesign::Pad", "Pad022")
pad23.Profile = sketch23
pad23.Length = 50
body24 = doc.addObject("PartDesign::Body", "Body023")

sketch24 = body24.newObject("Sketcher::SketchObject", "Sketch023")
sketch24.AttachmentSupport = (doc.getObject("XY_Plane023"), [""])
sketch24.MapMode = "FlatFace"
add_polygon(sketch24, [(3335, 1450), (3335, 125), (3385, 125), (3385, 1450)])
sketch24.addConstraint(Sketcher.Constraint("Vertical", 0))
sketch24.addConstraint(Sketcher.Constraint("Horizontal", 1))
sketch24.addConstraint(Sketcher.Constraint("Vertical", 2))
sketch24.addConstraint(Sketcher.Constraint("Horizontal", 3))
sketch24.addConstraint(Sketcher.Constraint("DistanceX", 1, 1, 1, 2, 50.0))
sketch24.addConstraint(Sketcher.Constraint("DistanceY", 0, 2, 0, 1, 1325.0))
sketch24.addConstraint(Sketcher.Constraint("DistanceX", -1, 1, 0, 2, 3335.0))
sketch24.addConstraint(Sketcher.Constraint("DistanceY", -1, 1, 0, 2, 125.0))
pad24 = body24.newObject("PartDesign::Pad", "Pad023")
pad24.Profile = sketch24
pad24.Length = 50
body25 = doc.addObject("PartDesign::Body", "Body024")

sketch25 = body25.newObject("Sketcher::SketchObject", "Sketch024")
sketch25.AttachmentSupport = (doc.getObject("XY_Plane024"), [""])
sketch25.MapMode = "FlatFace"
add_polygon(sketch25, [(3210, 1450), (3210, 125), (3260, 125), (3260, 1450)])
sketch25.addConstraint(Sketcher.Constraint("Vertical", 0))
sketch25.addConstraint(Sketcher.Constraint("Horizontal", 1))
sketch25.addConstraint(Sketcher.Constraint("Vertical", 2))
sketch25.addConstraint(Sketcher.Constraint("Horizontal", 3))
sketch25.addConstraint(Sketcher.Constraint("DistanceX", 1, 1, 1, 2, 50.0))
sketch25.addConstraint(Sketcher.Constraint("DistanceY", 0, 2, 0, 1, 1325.0))
sketch25.addConstraint(Sketcher.Constraint("DistanceX", -1, 1, 0, 2, 3210.0))
sketch25.addConstraint(Sketcher.Constraint("DistanceY", -1, 1, 0, 2, 125.0))
pad25 = body25.newObject("PartDesign::Pad", "Pad024")
pad25.Profile = sketch25
pad25.Length = 50

doc.recompute()
